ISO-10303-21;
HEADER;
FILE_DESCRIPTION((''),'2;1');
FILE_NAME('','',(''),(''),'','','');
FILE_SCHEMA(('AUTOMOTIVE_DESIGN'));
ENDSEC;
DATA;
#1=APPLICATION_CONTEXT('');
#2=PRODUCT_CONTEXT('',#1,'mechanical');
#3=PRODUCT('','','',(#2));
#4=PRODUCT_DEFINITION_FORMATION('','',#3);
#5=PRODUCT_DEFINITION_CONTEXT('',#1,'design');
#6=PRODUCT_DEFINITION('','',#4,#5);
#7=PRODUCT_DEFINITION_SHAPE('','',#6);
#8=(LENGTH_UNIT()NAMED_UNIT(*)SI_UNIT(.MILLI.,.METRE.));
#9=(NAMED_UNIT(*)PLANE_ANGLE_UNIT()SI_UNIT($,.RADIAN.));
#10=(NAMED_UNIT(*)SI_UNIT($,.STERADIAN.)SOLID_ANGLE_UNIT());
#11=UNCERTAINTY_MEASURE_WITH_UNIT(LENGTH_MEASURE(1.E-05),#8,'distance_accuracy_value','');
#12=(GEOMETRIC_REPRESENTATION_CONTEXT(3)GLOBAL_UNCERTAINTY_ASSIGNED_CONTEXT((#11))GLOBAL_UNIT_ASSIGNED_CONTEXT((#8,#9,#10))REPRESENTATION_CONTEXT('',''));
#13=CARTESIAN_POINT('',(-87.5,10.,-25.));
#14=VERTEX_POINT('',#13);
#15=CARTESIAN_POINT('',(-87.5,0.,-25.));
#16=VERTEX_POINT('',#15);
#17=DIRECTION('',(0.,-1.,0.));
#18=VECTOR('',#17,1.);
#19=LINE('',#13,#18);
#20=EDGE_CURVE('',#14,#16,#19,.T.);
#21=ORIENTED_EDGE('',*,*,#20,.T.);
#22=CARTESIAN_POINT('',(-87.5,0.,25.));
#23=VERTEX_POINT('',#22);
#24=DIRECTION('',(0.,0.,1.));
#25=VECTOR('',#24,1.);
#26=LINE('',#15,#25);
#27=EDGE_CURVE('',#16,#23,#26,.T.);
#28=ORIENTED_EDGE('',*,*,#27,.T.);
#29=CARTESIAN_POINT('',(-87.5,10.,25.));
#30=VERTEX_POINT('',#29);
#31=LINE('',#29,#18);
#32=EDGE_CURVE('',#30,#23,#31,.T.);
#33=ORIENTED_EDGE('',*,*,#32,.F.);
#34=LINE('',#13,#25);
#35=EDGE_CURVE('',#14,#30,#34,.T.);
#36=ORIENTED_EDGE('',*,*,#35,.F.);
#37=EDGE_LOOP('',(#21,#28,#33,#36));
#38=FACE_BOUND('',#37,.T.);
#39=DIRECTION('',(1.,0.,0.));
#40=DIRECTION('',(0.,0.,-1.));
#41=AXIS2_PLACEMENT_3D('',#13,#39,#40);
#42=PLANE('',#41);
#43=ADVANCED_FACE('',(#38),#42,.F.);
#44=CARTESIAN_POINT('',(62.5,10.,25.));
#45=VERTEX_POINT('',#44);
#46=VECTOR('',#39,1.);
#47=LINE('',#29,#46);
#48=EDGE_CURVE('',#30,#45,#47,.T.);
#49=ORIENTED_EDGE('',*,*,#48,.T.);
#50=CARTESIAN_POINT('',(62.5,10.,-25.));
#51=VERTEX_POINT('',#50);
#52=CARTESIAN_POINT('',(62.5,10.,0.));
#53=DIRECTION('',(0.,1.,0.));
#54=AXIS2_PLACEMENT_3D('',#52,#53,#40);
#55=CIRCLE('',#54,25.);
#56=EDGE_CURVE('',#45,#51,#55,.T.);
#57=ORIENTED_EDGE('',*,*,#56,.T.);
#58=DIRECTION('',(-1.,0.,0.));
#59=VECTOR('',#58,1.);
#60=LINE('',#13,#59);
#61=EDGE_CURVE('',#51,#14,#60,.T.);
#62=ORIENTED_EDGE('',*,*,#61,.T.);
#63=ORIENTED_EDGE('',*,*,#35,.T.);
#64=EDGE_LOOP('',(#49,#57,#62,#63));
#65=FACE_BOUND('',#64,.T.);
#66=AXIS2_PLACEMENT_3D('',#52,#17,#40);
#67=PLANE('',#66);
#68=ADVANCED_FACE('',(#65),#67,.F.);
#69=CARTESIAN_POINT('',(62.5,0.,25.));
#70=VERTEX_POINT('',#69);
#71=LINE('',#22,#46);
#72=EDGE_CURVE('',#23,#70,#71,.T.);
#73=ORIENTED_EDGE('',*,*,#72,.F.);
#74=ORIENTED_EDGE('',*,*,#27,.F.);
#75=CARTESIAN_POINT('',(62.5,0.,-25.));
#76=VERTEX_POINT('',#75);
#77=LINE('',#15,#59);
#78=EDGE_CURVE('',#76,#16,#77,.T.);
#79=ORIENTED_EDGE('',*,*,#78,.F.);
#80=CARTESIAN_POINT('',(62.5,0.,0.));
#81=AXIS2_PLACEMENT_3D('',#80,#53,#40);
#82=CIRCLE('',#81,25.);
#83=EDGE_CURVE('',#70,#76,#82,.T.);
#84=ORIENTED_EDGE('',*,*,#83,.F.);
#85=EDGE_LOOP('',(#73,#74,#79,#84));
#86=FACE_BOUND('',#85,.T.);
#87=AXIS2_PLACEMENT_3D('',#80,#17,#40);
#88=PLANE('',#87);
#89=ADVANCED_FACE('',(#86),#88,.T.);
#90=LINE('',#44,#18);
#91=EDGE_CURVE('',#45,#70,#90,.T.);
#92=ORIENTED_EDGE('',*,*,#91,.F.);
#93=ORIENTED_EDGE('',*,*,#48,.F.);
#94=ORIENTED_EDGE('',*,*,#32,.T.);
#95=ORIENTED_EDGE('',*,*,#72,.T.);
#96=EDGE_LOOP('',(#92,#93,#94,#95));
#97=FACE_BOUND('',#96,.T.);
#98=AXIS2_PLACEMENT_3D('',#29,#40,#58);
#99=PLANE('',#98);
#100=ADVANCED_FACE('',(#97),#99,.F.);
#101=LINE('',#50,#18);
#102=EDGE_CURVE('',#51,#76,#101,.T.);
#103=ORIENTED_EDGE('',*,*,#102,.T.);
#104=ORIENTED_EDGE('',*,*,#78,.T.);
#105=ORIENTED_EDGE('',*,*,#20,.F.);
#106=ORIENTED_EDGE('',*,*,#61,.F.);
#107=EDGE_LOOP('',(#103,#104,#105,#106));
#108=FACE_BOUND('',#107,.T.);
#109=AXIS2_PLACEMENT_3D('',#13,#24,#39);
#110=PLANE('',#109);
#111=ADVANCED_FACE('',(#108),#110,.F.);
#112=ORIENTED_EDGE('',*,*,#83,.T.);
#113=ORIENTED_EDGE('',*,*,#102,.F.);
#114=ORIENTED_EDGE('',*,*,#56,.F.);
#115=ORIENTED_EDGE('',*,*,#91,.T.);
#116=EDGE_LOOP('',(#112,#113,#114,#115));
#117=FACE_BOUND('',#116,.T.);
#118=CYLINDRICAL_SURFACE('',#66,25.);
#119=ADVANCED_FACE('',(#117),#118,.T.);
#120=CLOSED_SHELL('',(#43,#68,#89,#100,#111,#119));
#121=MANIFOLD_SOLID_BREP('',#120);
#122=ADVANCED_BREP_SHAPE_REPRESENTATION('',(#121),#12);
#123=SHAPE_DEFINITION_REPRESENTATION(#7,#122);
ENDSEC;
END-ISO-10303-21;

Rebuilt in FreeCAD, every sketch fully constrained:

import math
import FreeCAD as App
import Part
import Sketcher

doc = App.newDocument("Part")
body = doc.addObject("PartDesign::Body", "Body")

sketch1 = doc.addObject("Sketcher::SketchObject", "Sketch")
body.addObject(sketch1)
sketch1.AttachmentSupport = (doc.XZ_Plane, [""])
sketch1.MapMode = "FlatFace"
sketch1.addGeometry([
    Part.LineSegment(App.Vector(-88, -25, 0), App.Vector(-88, 25, 0)),
    Part.LineSegment(App.Vector(-88, 25, 0), App.Vector(62, 25, 0)),
    Part.ArcOfCircle(Part.Circle(App.Vector(62, 0, 0), App.Vector(0, 0, 1), 25), math.radians(-90), math.radians(90)),
    Part.LineSegment(App.Vector(62, -25, 0), App.Vector(-88, -25, 0)),
], False)
sketch1.addConstraint([
    Sketcher.Constraint("Coincident", 0, 2, 1, 1),
    Sketcher.Constraint("Tangent", 1, 2, 2, 2),
    Sketcher.Constraint("Tangent", 2, 1, 3, 1),
    Sketcher.Constraint("Coincident", 3, 2, 0, 1),
    Sketcher.Constraint("Vertical", 0),
    Sketcher.Constraint("Horizontal", 1),
    Sketcher.Constraint("Horizontal", 3),
    Sketcher.Constraint("PointOnObject", 2, 3, -1),
    Sketcher.Constraint("Radius", 2, 25.0),
    Sketcher.Constraint("DistanceX", 1, 1, 1, 2, 150.0),
    Sketcher.Constraint("DistanceX", -1, 1, 2, 3, 62.5),
])
pad1 = doc.addObject("PartDesign::Pad", "Pad")
body.addObject(pad1)
pad1.Profile = sketch1
pad1.Length = 10
pad1.Reversed = True

doc.recompute()
